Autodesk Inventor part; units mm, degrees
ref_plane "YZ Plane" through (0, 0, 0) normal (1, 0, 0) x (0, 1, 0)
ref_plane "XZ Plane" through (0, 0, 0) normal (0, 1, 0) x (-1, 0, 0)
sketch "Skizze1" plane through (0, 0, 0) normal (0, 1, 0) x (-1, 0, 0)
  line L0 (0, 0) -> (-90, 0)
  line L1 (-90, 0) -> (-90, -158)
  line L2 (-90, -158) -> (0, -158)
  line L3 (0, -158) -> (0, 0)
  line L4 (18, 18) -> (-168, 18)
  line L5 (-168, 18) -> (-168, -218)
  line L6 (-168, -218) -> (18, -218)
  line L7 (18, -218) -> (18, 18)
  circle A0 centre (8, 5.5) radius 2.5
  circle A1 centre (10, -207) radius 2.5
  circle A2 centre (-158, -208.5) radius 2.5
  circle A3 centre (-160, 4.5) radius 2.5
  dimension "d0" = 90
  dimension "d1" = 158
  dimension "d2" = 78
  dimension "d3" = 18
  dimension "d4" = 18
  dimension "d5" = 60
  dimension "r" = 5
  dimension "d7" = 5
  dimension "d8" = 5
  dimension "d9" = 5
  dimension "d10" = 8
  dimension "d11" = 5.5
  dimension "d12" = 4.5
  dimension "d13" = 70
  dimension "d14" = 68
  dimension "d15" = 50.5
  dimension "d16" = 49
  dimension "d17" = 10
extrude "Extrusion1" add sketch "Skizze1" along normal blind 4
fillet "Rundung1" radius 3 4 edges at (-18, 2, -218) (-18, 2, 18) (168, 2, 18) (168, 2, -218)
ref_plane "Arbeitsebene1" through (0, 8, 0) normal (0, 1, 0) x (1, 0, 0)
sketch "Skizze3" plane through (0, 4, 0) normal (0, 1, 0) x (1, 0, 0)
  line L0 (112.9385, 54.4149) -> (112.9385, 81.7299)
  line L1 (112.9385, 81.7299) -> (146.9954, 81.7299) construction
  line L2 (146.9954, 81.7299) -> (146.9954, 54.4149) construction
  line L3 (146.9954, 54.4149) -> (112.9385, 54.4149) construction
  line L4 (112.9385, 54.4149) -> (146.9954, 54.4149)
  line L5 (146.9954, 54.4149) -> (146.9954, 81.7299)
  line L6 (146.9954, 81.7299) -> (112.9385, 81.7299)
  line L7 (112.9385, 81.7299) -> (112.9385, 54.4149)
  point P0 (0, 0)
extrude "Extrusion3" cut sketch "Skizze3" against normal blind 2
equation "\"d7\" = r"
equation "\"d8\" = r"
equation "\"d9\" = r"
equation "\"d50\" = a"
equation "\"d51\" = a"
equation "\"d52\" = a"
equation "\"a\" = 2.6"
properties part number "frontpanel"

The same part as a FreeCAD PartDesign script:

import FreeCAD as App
import Part
import Sketcher

V = App.Vector
Q = App.Units.Quantity


def edges_at(feature, points):
    """Names of the edges that pass closest to the given points."""
    edges = feature.Shape.Edges
    near = lambda p: min(range(len(edges)), key=lambda i: edges[i].distToShape(Part.Vertex(*p))[0])
    return sorted({f"Edge{near(p) + 1}" for p in points})


def add_polygon(sketch, points):
    """Adds a closed chain of lines whose ends are joined by coincident constraints."""
    first, n = sketch.GeometryCount, len(points)
    for a, b in zip(points, points[1:] + points[:1]):
        sketch.addGeometry(Part.LineSegment(App.Vector(*a, 0), App.Vector(*b, 0)), False)
    for i in range(n):
        sketch.addConstraint(Sketcher.Constraint("Coincident", first + i, 2, first + (i + 1) % n, 1))

doc = App.newDocument("Part")
body = doc.addObject("PartDesign::Body", "Body")

sketch1 = body.newObject("Sketcher::SketchObject", "Sketch")
sketch1.AttachmentSupport = (doc.getObject("XZ_Plane"), [""])
sketch1.MapMode = "FlatFace"
add_polygon(sketch1, [(-18, -218), (-18, 18), (168, 18), (168, -218)])
sketch1.addGeometry(Part.Circle(V(158, -208.5, 0), V(0, 0, 1), 2.5), False)
sketch1.addGeometry(Part.Circle(V(-10, -207, 0), V(0, 0, 1), 2.5), False)
sketch1.addGeometry(Part.Circle(V(160, 4.5, 0), V(0, 0, 1), 2.5), False)
add_polygon(sketch1, [(90, 0), (0, 0), (0, -158), (90, -158)])
sketch1.addGeometry(Part.Circle(V(-8, 5.5, 0), V(0, 0, 1), 2.5), False)
sketch1.addConstraint(Sketcher.Constraint("Vertical", 0))
sketch1.addConstraint(Sketcher.Constraint("Horizontal", 1))
sketch1.addConstraint(Sketcher.Constraint("Vertical", 2))
sketch1.addConstraint(Sketcher.Constraint("Horizontal", 3))
sketch1.addConstraint(Sketcher.Constraint("Horizontal", 7))
sketch1.addConstraint(Sketcher.Constraint("Vertical", 8))
sketch1.addConstraint(Sketcher.Constraint("Horizontal", 9))
sketch1.addConstraint(Sketcher.Constraint("Vertical", 10))
sketch1.addConstraint(Sketcher.Constraint("Coincident", 7, 2, -1, 1))
sketch1.addConstraint(Sketcher.Constraint("Equal", 4, 5))
sketch1.addConstraint(Sketcher.Constraint("Equal", 5, 6))
sketch1.addConstraint(Sketcher.Constraint("Equal", 6, 11))
sketch1.addConstraint(Sketcher.Constraint("Diameter", 4, Q("5 mm")))
sketch1.addConstraint(Sketcher.Constraint("DistanceX", 7, 2, 7, 1, Q("90 mm")))
sketch1.addConstraint(Sketcher.Constraint("DistanceY", 8, 2, 8, 1, Q("158 mm")))
sketch1.addConstraint(Sketcher.Constraint("DistanceX", -1, 1, 4, 3, Q("158 mm")))
sketch1.addConstraint(Sketcher.Constraint("DistanceX", 5, 3, -1, 1, Q("10 mm")))
sketch1.addConstraint(Sketcher.Constraint("DistanceX", 11, 3, -1, 1, Q("8 mm")))
sketch1.addConstraint(Sketcher.Constraint("DistanceX", 0, 2, -1, 1, Q("18 mm")))
sketch1.addConstraint(Sketcher.Constraint("DistanceY", -1, 1, 0, 2, Q("18 mm")))
sketch1.addConstraint(Sketcher.Constraint("DistanceX", 6, 3, 1, 2, Q("8 mm")))
sketch1.addConstraint(Sketcher.Constraint("DistanceX", 4, 3, 1, 2, Q("10 mm")))
sketch1.addConstraint(Sketcher.Constraint("DistanceY", 5, 3, 8, 2, Q("49 mm")))
sketch1.addConstraint(Sketcher.Constraint("DistanceY", 3, 2, 8, 2, Q("60 mm")))
sketch1.addConstraint(Sketcher.Constraint("DistanceY", -1, 1, 6, 3, Q("4.5 mm")))
sketch1.addConstraint(Sketcher.Constraint("DistanceY", -1, 1, 11, 3, Q("5.5 mm")))
sketch1.addConstraint(Sketcher.Constraint("DistanceY", 4, 3, 8, 2, Q("50.5 mm")))
pad1 = body.newObject("PartDesign::Pad", "Pad")
pad1.Profile = sketch1
pad1.Length = 4
pad1.Reversed = True
doc.recompute()

fillet = body.newObject("PartDesign::Fillet", "Fillet")
fillet.Base = (pad1, edges_at(pad1, [
    (-18, 2, -218),
    (-18, 2, 18),
    (168, 2, 18),
    (168, 2, -218),
]))
fillet.Radius = 3

sketch2 = body.newObject("Sketcher::SketchObject", "Sketch001")
sketch2.AttachmentSupport = (doc.getObject("XZ_Plane"), [""])
sketch2.MapMode = "FlatFace"
sketch2.AttachmentOffset = App.Placement(V(0, 0, -4), App.Rotation())
add_polygon(sketch2, [(113, -82), (113, -54), (147, -54), (147, -82)])
sketch2.addConstraint(Sketcher.Constraint("Vertical", 0))
sketch2.addConstraint(Sketcher.Constraint("Horizontal", 1))
sketch2.addConstraint(Sketcher.Constraint("Vertical", 2))
sketch2.addConstraint(Sketcher.Constraint("Horizontal", 3))
sketch2.addConstraint(Sketcher.Constraint("DistanceX", 1, 1, 1, 2, Q("34.057 mm")))
sketch2.addConstraint(Sketcher.Constraint("DistanceY", 0, 1, 0, 2, Q("27.315 mm")))
sketch2.addConstraint(Sketcher.Constraint("DistanceY", 2, 2, -1, 1, Q("81.73 mm")))
sketch2.addConstraint(Sketcher.Constraint("DistanceX", -1, 1, 0, 2, Q("112.9385 mm")))
pocket1 = body.newObject("PartDesign::Pocket", "Pocket")
pocket1.Profile = sketch2
pocket1.Length = 2
pocket1.Reversed = True

doc.recompute()
